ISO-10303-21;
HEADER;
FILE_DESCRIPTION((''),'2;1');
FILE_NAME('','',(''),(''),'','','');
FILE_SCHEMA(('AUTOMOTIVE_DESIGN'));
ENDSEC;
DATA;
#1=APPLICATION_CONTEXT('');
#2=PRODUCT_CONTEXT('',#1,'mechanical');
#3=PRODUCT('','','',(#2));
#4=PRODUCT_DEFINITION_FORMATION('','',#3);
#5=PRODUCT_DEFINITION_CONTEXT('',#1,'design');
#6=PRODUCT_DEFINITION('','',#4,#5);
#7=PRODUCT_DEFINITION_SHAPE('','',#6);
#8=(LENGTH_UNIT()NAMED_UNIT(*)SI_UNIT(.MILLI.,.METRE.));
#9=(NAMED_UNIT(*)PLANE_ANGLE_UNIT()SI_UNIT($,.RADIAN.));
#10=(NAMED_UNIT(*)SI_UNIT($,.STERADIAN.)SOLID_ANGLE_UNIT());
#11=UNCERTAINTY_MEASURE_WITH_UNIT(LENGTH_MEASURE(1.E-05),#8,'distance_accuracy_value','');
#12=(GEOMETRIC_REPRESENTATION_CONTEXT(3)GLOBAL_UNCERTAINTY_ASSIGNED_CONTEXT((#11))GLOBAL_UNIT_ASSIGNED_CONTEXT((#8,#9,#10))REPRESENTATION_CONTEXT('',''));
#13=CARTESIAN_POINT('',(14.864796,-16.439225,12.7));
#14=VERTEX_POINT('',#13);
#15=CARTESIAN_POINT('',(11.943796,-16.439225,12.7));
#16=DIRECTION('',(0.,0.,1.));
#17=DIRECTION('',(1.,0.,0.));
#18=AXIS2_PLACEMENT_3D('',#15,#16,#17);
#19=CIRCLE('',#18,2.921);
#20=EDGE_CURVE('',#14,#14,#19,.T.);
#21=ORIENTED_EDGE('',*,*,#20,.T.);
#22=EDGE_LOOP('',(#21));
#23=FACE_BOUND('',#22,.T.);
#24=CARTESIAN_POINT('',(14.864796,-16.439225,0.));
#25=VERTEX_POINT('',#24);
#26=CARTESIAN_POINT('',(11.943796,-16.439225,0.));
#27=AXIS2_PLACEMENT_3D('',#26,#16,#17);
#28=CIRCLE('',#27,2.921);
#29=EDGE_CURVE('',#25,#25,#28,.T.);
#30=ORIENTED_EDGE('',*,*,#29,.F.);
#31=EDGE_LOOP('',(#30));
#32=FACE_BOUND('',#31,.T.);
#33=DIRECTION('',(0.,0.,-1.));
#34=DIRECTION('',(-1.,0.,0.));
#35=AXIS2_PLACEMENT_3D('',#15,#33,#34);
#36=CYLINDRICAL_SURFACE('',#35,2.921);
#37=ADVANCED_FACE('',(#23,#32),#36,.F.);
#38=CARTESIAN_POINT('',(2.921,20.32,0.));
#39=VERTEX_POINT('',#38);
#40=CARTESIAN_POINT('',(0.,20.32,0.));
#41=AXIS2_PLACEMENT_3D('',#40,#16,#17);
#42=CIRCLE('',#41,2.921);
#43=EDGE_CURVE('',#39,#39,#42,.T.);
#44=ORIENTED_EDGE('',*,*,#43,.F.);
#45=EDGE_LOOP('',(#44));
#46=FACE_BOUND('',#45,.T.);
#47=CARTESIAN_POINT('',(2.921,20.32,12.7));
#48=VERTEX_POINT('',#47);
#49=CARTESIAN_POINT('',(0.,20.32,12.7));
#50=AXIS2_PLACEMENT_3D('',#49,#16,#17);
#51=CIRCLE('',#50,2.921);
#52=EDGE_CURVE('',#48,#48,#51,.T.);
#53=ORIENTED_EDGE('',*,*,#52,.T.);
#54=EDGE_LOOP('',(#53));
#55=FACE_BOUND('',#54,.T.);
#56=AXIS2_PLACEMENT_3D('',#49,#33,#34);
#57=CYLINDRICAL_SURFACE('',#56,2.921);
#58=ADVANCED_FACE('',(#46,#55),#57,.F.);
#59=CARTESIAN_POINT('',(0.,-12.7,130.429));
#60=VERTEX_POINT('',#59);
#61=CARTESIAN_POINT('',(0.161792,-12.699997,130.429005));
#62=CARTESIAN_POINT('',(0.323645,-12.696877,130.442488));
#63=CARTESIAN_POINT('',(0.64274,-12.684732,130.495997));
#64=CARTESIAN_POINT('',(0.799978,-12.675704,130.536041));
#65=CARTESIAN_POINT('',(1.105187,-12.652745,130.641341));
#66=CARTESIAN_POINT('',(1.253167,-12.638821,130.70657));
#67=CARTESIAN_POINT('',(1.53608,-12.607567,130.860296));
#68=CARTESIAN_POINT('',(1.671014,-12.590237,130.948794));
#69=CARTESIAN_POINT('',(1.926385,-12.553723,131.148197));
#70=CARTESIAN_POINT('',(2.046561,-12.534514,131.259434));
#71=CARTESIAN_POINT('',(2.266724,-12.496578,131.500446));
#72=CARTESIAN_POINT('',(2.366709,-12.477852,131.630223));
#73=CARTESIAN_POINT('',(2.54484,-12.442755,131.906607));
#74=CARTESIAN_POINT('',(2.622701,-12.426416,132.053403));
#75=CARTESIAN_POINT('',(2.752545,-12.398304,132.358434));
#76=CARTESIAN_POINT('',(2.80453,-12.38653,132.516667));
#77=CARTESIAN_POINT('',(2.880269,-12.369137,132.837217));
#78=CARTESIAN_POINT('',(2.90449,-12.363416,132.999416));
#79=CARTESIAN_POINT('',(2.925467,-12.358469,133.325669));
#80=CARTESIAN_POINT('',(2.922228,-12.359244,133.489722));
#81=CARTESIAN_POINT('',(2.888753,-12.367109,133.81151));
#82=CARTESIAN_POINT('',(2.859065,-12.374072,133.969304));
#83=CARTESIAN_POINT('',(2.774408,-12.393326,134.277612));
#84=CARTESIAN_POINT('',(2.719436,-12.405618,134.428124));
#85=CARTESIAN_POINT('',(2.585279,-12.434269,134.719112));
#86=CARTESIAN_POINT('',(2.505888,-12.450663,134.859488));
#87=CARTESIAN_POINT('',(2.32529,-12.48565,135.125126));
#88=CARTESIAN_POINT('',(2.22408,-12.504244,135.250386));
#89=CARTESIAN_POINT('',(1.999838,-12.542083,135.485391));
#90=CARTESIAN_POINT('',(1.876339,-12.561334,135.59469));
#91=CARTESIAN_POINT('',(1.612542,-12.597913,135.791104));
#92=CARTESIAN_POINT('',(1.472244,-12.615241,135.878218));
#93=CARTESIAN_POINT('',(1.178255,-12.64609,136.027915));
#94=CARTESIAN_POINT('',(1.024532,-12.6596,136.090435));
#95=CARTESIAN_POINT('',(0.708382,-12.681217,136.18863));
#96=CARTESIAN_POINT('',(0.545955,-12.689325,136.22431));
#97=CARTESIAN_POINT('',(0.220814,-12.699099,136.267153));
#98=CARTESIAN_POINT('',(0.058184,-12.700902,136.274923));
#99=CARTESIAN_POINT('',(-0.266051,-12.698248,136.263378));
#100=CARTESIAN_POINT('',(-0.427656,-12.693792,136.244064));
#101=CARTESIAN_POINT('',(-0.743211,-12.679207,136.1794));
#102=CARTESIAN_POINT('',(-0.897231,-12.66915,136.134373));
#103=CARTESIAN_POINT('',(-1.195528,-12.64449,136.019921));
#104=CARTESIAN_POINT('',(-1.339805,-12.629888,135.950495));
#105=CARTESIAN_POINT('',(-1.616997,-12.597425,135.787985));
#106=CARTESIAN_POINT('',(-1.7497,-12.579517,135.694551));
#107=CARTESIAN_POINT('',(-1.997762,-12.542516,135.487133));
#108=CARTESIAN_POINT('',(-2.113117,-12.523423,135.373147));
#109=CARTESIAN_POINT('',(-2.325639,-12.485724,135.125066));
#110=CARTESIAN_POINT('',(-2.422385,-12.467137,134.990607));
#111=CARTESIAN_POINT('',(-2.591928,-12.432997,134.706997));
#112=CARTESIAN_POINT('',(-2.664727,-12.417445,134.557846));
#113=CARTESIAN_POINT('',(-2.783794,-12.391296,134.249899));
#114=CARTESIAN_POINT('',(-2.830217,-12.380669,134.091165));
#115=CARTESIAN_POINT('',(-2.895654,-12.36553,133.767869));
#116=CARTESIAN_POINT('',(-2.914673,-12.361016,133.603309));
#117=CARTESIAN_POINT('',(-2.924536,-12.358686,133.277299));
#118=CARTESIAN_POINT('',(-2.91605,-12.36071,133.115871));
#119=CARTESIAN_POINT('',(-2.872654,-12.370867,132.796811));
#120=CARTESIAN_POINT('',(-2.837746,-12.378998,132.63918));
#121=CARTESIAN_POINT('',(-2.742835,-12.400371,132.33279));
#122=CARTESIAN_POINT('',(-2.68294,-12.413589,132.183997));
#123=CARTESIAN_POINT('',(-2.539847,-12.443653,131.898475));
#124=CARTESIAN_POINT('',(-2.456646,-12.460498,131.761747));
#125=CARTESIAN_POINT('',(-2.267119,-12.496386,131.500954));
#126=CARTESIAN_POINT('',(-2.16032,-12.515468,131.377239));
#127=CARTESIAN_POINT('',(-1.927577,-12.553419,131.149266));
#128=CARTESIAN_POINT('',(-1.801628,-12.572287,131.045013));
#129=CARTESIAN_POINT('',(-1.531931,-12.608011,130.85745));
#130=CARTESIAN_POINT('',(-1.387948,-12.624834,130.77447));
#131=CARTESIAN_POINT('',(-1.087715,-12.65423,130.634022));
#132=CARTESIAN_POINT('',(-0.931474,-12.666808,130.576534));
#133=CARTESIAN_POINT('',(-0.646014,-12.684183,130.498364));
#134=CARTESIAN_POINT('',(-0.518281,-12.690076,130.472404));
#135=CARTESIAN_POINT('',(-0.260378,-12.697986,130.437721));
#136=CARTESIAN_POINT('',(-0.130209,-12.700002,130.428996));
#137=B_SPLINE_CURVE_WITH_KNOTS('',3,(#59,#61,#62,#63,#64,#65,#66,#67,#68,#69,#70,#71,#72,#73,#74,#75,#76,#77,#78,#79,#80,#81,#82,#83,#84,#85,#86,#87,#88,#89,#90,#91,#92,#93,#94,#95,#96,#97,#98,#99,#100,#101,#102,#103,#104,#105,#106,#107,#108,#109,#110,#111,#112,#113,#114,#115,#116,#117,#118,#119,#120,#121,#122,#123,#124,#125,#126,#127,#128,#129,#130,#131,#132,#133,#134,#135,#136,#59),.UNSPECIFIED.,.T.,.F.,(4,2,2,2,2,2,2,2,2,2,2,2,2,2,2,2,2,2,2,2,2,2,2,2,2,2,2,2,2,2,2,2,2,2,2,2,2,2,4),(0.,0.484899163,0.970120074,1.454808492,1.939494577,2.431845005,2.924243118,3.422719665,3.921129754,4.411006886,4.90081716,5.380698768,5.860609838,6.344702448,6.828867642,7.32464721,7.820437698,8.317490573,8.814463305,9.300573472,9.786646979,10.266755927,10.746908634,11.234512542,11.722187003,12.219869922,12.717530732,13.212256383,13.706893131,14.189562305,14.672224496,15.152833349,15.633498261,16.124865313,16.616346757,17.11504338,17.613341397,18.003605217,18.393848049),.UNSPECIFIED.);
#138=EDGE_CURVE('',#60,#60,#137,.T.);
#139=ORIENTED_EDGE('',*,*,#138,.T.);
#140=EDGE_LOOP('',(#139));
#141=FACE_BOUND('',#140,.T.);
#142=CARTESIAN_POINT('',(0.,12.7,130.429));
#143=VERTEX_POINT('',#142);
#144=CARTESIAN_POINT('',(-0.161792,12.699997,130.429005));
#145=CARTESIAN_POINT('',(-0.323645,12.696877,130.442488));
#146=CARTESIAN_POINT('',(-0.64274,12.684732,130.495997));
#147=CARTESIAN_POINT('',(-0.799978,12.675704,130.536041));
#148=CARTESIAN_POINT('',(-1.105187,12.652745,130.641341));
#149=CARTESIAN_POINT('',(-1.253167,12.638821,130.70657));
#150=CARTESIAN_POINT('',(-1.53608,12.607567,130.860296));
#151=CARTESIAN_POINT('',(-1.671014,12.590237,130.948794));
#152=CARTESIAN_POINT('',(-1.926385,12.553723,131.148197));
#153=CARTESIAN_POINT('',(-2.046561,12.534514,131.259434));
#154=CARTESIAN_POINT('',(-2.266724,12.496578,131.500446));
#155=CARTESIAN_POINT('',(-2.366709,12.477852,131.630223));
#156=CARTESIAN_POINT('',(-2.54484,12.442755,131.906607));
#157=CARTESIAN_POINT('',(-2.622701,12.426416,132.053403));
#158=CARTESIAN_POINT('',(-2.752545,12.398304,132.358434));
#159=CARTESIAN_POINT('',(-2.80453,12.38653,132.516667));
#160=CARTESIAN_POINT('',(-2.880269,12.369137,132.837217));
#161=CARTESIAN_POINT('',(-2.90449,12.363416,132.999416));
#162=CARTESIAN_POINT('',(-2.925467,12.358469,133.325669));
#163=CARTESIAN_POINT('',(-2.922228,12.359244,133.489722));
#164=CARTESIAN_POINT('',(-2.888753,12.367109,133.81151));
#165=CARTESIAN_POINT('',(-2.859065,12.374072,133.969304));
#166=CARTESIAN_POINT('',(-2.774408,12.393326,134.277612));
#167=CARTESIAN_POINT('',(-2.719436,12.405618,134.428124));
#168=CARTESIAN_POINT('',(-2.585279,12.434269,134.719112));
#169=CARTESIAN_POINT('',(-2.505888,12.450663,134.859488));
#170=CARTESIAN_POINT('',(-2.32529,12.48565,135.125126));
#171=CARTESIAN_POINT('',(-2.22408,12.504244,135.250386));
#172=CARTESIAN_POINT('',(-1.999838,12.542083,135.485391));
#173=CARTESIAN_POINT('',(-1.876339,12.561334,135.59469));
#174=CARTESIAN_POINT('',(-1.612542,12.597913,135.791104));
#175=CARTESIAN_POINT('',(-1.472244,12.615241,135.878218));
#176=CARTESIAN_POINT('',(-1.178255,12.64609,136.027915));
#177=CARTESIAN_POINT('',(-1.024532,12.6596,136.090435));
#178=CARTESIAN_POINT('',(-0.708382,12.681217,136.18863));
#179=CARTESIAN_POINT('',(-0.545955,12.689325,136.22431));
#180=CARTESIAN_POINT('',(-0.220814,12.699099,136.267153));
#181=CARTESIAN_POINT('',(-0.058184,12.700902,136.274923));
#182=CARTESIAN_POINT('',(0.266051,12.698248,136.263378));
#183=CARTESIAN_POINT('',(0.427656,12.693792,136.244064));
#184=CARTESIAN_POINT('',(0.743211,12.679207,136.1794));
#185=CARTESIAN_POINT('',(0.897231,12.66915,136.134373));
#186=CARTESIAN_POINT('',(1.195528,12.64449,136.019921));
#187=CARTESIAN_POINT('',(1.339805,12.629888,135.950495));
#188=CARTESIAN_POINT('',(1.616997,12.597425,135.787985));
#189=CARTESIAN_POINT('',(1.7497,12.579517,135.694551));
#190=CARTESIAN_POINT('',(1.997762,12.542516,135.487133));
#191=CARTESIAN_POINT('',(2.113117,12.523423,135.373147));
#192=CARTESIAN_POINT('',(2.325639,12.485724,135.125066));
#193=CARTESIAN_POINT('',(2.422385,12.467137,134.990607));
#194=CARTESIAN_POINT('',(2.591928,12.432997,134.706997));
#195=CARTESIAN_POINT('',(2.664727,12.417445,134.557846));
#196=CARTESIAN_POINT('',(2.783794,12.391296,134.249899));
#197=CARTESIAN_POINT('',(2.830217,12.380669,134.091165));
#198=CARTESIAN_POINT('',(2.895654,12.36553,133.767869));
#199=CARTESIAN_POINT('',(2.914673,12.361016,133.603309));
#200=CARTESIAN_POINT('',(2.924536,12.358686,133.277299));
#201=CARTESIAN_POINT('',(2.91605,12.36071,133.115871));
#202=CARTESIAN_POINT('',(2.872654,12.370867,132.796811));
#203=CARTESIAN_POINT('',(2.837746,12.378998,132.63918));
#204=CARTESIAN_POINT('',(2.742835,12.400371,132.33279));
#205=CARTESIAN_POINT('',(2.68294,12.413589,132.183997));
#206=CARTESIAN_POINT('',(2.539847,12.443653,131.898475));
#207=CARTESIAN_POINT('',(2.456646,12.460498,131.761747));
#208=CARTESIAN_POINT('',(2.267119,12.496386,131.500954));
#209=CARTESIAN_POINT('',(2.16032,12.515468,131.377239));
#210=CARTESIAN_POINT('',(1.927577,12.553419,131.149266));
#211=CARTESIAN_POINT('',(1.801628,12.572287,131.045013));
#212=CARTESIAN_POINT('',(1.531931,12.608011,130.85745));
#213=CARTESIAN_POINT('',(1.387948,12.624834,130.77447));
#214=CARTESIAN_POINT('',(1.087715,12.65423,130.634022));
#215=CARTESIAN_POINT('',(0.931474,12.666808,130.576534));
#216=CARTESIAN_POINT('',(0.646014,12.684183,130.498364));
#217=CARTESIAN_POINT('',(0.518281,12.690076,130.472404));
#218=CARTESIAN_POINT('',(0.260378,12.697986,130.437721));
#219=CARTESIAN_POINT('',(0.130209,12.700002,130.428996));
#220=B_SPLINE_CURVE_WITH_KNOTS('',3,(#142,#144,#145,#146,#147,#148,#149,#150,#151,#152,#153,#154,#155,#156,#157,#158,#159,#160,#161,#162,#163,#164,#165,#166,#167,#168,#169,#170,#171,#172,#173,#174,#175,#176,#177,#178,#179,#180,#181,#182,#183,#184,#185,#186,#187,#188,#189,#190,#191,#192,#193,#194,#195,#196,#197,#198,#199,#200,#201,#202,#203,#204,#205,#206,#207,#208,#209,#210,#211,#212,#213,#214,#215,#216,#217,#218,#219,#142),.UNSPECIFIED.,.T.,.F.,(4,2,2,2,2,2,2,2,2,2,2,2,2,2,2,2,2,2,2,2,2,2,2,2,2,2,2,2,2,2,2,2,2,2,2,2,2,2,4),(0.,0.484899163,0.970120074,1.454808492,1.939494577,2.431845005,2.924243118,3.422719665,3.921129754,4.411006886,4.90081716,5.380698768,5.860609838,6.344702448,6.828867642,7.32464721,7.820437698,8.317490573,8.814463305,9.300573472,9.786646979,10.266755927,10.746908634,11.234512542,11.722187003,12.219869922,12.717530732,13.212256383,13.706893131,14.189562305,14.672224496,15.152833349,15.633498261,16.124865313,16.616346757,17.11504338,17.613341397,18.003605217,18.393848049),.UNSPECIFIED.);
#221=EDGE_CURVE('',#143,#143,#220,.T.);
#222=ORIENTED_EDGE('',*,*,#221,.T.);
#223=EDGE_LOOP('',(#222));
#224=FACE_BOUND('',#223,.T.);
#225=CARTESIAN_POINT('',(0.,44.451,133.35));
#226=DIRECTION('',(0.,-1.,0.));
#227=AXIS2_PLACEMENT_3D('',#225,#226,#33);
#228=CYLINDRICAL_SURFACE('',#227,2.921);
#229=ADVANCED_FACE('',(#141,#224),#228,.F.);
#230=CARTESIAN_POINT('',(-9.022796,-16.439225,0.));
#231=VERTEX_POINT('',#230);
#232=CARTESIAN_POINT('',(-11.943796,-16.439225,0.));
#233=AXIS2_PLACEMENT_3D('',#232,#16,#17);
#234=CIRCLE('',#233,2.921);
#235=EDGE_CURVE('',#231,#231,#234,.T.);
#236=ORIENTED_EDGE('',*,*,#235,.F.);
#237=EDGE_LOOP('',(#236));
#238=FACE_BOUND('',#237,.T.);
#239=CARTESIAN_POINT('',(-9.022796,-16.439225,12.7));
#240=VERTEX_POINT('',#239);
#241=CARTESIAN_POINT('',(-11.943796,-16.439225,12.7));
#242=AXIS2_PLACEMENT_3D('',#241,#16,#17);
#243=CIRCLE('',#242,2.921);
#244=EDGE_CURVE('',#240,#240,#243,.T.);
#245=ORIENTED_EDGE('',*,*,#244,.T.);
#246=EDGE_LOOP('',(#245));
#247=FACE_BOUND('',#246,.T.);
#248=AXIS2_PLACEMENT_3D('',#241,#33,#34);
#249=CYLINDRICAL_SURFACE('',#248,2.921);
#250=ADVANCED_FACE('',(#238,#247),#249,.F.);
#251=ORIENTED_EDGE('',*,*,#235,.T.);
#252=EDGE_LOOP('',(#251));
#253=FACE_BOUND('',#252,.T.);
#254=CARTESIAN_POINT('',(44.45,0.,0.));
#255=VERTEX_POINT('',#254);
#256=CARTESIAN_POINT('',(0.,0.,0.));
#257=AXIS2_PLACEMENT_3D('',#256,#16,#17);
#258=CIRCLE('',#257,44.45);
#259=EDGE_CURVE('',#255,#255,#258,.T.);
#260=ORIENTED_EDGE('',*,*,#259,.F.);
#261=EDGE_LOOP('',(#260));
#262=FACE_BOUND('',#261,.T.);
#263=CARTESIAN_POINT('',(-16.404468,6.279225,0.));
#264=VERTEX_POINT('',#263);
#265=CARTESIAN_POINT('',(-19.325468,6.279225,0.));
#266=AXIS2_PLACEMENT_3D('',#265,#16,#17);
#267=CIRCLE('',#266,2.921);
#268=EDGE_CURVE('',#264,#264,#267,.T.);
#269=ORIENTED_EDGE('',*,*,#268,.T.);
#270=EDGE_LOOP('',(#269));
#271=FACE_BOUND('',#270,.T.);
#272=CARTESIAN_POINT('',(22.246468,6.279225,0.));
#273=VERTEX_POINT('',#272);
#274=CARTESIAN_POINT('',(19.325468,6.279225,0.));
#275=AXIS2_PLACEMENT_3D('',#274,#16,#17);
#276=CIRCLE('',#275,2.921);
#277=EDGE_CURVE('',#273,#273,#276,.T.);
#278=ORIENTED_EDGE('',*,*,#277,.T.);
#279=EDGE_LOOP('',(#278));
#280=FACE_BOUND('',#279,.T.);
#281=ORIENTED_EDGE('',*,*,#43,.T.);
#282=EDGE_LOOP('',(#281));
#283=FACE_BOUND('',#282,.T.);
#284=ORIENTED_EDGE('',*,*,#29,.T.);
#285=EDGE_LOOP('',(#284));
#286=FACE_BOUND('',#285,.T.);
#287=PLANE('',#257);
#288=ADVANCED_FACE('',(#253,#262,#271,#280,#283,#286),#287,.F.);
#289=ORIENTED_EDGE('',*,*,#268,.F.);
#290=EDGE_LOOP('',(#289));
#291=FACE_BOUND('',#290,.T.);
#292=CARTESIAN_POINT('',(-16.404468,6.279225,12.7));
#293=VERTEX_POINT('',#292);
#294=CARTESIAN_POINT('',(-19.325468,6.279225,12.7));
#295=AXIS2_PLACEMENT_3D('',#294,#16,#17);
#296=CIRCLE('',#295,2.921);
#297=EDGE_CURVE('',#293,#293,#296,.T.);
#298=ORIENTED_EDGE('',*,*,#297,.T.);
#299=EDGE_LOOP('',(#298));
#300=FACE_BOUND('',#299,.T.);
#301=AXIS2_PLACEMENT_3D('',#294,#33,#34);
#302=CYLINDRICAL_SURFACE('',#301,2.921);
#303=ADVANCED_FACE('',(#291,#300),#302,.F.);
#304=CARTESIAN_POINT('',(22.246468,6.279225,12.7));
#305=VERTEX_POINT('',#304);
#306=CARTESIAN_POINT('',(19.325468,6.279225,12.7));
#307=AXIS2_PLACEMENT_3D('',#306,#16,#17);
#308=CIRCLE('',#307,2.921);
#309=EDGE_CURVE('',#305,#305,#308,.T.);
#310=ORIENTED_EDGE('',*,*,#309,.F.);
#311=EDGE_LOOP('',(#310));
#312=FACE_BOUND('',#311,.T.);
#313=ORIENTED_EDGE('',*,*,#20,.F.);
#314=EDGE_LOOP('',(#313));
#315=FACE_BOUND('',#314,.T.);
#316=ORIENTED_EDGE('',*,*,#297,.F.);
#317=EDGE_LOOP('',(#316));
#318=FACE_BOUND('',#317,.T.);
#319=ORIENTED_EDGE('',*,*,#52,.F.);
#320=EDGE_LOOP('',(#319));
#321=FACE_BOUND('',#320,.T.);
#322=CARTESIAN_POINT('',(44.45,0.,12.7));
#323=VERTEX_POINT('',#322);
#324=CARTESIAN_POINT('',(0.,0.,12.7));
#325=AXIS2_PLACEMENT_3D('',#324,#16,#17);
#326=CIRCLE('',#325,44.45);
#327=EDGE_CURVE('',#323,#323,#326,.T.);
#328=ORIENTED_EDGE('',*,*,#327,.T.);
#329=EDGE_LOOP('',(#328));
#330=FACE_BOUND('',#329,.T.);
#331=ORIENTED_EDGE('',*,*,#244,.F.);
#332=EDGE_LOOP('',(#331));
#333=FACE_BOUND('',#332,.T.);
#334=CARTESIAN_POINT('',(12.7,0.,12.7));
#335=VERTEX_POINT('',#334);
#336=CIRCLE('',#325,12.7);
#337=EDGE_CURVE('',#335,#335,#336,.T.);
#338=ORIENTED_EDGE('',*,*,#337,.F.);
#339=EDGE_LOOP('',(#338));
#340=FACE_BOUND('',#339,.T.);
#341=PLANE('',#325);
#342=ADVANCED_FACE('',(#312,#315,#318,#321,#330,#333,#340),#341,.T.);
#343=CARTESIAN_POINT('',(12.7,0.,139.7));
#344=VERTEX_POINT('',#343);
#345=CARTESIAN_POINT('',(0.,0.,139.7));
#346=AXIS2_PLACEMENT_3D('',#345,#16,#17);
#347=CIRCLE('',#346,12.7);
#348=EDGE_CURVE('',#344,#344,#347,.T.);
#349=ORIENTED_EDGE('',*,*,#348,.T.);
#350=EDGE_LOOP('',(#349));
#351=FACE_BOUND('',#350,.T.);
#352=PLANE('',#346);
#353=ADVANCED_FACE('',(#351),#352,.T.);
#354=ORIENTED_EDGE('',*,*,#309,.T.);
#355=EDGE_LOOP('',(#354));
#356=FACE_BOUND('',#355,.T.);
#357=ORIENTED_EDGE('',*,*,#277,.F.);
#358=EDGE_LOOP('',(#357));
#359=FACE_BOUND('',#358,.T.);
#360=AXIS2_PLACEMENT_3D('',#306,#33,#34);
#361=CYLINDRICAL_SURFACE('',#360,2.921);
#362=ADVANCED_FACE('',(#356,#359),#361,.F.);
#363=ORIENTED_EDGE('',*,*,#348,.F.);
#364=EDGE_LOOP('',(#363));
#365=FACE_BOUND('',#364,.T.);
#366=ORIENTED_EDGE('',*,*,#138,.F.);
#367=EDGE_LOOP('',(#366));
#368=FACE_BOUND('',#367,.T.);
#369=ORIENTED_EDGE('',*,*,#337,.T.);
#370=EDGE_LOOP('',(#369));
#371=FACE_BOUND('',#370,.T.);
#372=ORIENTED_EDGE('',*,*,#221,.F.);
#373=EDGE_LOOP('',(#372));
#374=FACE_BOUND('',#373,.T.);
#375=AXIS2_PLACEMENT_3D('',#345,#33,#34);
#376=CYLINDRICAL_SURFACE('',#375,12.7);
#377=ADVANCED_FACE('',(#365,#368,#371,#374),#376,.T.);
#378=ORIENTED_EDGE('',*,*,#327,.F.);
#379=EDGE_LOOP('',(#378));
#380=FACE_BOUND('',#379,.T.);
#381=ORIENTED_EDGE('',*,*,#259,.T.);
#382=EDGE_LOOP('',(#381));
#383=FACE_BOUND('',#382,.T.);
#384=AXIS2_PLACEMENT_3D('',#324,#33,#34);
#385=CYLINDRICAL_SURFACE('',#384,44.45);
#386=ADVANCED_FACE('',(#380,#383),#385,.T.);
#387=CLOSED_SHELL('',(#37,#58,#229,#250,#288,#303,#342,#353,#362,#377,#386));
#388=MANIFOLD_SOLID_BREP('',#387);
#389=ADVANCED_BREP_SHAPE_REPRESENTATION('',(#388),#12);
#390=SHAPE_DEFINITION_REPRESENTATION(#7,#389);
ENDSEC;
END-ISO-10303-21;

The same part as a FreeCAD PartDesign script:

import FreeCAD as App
import Part
import Sketcher
from FreeCAD import Vector
Q = App.Units.Quantity

doc = App.newDocument("Part")
body = doc.addObject("PartDesign::Body", "Body")

# Sketch on XY plane
sketch1 = body.newObject("Sketcher::SketchObject", "Sketch")
sketch1.AttachmentSupport = (doc.getObject("XY_Plane"), [""])
sketch1.MapMode = "FlatFace"
sketch1.addGeometry([
    Part.Circle(Vector(0, 0, 0), Vector(0, 0, 1), 44.5),  # 0
    Part.Circle(Vector(-11.9, -16.4, 0), Vector(0, 0, 1), 2.9),  # 1
    Part.Circle(Vector(11.9, -16.4, 0), Vector(0, 0, 1), 2.9),  # 2
    Part.Circle(Vector(-19.3, 6.3, 0), Vector(0, 0, 1), 2.9),  # 3
    Part.Circle(Vector(0, 20.3, 0), Vector(0, 0, 1), 2.9),  # 4
    Part.Circle(Vector(19.3, 6.3, 0), Vector(0, 0, 1), 2.9),  # 5
], False)
sketch1.addConstraint([
    Sketcher.Constraint("Coincident", 0, 3, -1, 1),
    Sketcher.Constraint("Equal", 1, 2),
    Sketcher.Constraint("Equal", 2, 3),
    Sketcher.Constraint("Equal", 3, 4),
    Sketcher.Constraint("Equal", 4, 5),
    Sketcher.Constraint("Symmetric", 1, 3, 2, 3, -2),
    Sketcher.Constraint("Symmetric", 3, 3, 5, 3, -2),
    Sketcher.Constraint("PointOnObject", 4, 3, -2),
    Sketcher.Constraint("Diameter", 0, Q("3.5 in")),
    Sketcher.Constraint("Diameter", 1, Q("0.23 in")),
    Sketcher.Constraint("DistanceY", -1, 1, 4, 3, Q("0.8 in")),
    Sketcher.Constraint("DistanceX", 3, 3, -1, 1, Q("19.325468 mm")),
    Sketcher.Constraint("DistanceY", 1, 3, 3, 3, Q("22.718451 mm")),
    Sketcher.Constraint("DistanceX", 1, 3, -1, 1, Q("11.943796 mm")),
    Sketcher.Constraint("DistanceY", 1, 3, -1, 1, Q("16.439225 mm")),
])
pad1 = body.newObject("PartDesign::Pad", "Pad")
pad1.Profile = sketch1
pad1.Length = Q("0.5 in")

# Sketch on XY plane
sketch2 = body.newObject("Sketcher::SketchObject", "Sketch001")
sketch2.AttachmentSupport = (doc.getObject("XY_Plane"), [""])
sketch2.MapMode = "FlatFace"
sketch2.AttachmentOffset = App.Placement(Vector(0, 0, 0.5 * 25.4), App.Rotation())
sketch2.addGeometry(Part.Circle(Vector(0, 0, 0), Vector(0, 0, 1), 13), False)
sketch2.addConstraint([
    Sketcher.Constraint("Coincident", 0, 3, -1, 1),
    Sketcher.Constraint("Diameter", 0, Q("1 in")),
])
pad2 = body.newObject("PartDesign::Pad", "Pad001")
pad2.Profile = sketch2
pad2.Length = Q("5 in")

# Sketch on XZ plane
sketch3 = body.newObject("Sketcher::SketchObject", "Sketch002")
sketch3.AttachmentSupport = (doc.getObject("XZ_Plane"), [""])
sketch3.MapMode = "FlatFace"
sketch3.AttachmentOffset = App.Placement(Vector(0, 0, 0.5 * 25.4), App.Rotation())
sketch3.addGeometry(Part.Circle(Vector(0, 133.3, 0), Vector(0, 0, 1), 2.9), False)
sketch3.addConstraint([
    Sketcher.Constraint("PointOnObject", 0, 3, -2),
    Sketcher.Constraint("Diameter", 0, Q("0.23 in")),
    Sketcher.Constraint("DistanceY", -1, 1, 0, 3, Q("5.25 in")),
])
pocket1 = body.newObject("PartDesign::Pocket", "Pocket")
pocket1.Profile = sketch3
pocket1.Length = Q("1 in")

doc.recompute()
